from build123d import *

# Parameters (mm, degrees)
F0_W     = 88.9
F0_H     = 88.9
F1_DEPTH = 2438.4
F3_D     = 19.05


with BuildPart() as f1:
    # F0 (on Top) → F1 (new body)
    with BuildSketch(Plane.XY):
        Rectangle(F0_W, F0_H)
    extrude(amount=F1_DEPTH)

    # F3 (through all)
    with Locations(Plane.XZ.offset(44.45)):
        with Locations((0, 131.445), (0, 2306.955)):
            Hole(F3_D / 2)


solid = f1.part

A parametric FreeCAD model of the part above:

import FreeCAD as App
import Part
import Sketcher
Q = App.Units.Quantity


def add_polygon(sketch, points):
    """Adds a closed chain of lines whose ends are joined by coincident constraints."""
    first, n = sketch.GeometryCount, len(points)
    for a, b in zip(points, points[1:] + points[:1]):
        sketch.addGeometry(Part.LineSegment(App.Vector(*a, 0), App.Vector(*b, 0)), False)
    for i in range(n):
        sketch.addConstraint(Sketcher.Constraint("Coincident", first + i, 2, first + (i + 1) % n, 1))

doc = App.newDocument("Part")
body = doc.addObject("PartDesign::Body", "Body")

# Sketch on XY plane
sketch1 = body.newObject("Sketcher::SketchObject", "Sketch")
sketch1.AttachmentSupport = (doc.getObject("XY_Plane"), [""])
sketch1.MapMode = "FlatFace"
add_polygon(sketch1, [(-44, 44), (-44, -44), (44, -44), (44, 44)])  # lines 0-3
sketch1.addConstraint(Sketcher.Constraint("Vertical", 0))
sketch1.addConstraint(Sketcher.Constraint("Horizontal", 1))
sketch1.addConstraint(Sketcher.Constraint("Vertical", 2))
sketch1.addConstraint(Sketcher.Constraint("Horizontal", 3))
sketch1.addConstraint(Sketcher.Constraint("Symmetric", 0, 2, 2, 2, -1, 1))
sketch1.addConstraint(Sketcher.Constraint("Equal", 3, 0))
sketch1.addConstraint(Sketcher.Constraint("DistanceX", 1, 1, 1, 2, Q("3.5 in")))
pad1 = body.newObject("PartDesign::Pad", "Pad")
pad1.Profile = sketch1
pad1.Length = Q("96 in")

# Sketch on XZ plane
sketch2 = body.newObject("Sketcher::SketchObject", "Sketch001")
sketch2.AttachmentSupport = (doc.getObject("XZ_Plane"), [""])
sketch2.MapMode = "FlatFace"
sketch2.AttachmentOffset = App.Placement(App.Vector(0, 0, 1.75 * 25.4), App.Rotation())
sketch2.addGeometry(Part.Circle(App.Vector(0, 131, 0), App.Vector(0, 0, 1), 10), False)
sketch2.addGeometry(Part.Circle(App.Vector(0, 2307, 0), App.Vector(0, 0, 1), 10), False)
sketch2.addConstraint(Sketcher.Constraint("Equal", 0, 1))
sketch2.addConstraint(Sketcher.Constraint("PointOnObject", 0, 3, -2))
sketch2.addConstraint(Sketcher.Constraint("PointOnObject", 1, 3, -2))
sketch2.addConstraint(Sketcher.Constraint("Diameter", 0, Q("0.75 in")))
sketch2.addConstraint(Sketcher.Constraint("DistanceY", 0, 3, 1, 3, Q("85.65 in")))
sketch2.addConstraint(Sketcher.Constraint("DistanceY", -1, 1, 0, 3, Q("5.175 in")))
doc.recompute()
hole = body.newObject("PartDesign::Hole", "Hole")
hole.Profile = sketch2
hole.ThreadType = "None"
hole.Diameter = Q("0.75 in")
hole.DepthType = "ThroughAll"

doc.recompute()
